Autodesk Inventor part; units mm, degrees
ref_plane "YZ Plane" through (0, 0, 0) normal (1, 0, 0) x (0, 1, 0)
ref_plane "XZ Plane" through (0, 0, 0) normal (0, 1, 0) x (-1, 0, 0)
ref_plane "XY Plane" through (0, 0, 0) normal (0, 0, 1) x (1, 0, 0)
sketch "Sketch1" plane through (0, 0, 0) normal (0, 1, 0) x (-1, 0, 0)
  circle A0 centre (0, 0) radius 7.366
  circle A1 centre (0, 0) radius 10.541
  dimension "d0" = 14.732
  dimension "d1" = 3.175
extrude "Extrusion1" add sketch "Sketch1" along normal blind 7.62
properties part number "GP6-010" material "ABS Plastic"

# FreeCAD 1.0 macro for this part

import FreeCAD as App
import Part
import Sketcher

V = App.Vector
Q = App.Units.Quantity

doc = App.newDocument("Part")
body = doc.addObject("PartDesign::Body", "Body")

sketch1 = body.newObject("Sketcher::SketchObject", "Sketch")
sketch1.AttachmentSupport = (doc.getObject("XZ_Plane"), [""])
sketch1.MapMode = "FlatFace"
sketch1.addGeometry(Part.Circle(V(0, 0, 0), V(0, 0, 1), 10.541), False)
sketch1.addGeometry(Part.Circle(V(0, 0, 0), V(0, 0, 1), 7.366), False)
sketch1.addConstraint(Sketcher.Constraint("Coincident", 0, 3, -1, 1))
sketch1.addConstraint(Sketcher.Constraint("Coincident", 1, 3, -1, 1))
sketch1.addConstraint(Sketcher.Constraint("Diameter", 1, Q("0.58 in")))
sketch1.addConstraint(Sketcher.Constraint("Diameter", 0, Q("0.83 in")))
pad1 = body.newObject("PartDesign::Pad", "Pad")
pad1.Profile = sketch1
pad1.Length = Q("0.3 in")
pad1.Reversed = True

doc.recompute()
